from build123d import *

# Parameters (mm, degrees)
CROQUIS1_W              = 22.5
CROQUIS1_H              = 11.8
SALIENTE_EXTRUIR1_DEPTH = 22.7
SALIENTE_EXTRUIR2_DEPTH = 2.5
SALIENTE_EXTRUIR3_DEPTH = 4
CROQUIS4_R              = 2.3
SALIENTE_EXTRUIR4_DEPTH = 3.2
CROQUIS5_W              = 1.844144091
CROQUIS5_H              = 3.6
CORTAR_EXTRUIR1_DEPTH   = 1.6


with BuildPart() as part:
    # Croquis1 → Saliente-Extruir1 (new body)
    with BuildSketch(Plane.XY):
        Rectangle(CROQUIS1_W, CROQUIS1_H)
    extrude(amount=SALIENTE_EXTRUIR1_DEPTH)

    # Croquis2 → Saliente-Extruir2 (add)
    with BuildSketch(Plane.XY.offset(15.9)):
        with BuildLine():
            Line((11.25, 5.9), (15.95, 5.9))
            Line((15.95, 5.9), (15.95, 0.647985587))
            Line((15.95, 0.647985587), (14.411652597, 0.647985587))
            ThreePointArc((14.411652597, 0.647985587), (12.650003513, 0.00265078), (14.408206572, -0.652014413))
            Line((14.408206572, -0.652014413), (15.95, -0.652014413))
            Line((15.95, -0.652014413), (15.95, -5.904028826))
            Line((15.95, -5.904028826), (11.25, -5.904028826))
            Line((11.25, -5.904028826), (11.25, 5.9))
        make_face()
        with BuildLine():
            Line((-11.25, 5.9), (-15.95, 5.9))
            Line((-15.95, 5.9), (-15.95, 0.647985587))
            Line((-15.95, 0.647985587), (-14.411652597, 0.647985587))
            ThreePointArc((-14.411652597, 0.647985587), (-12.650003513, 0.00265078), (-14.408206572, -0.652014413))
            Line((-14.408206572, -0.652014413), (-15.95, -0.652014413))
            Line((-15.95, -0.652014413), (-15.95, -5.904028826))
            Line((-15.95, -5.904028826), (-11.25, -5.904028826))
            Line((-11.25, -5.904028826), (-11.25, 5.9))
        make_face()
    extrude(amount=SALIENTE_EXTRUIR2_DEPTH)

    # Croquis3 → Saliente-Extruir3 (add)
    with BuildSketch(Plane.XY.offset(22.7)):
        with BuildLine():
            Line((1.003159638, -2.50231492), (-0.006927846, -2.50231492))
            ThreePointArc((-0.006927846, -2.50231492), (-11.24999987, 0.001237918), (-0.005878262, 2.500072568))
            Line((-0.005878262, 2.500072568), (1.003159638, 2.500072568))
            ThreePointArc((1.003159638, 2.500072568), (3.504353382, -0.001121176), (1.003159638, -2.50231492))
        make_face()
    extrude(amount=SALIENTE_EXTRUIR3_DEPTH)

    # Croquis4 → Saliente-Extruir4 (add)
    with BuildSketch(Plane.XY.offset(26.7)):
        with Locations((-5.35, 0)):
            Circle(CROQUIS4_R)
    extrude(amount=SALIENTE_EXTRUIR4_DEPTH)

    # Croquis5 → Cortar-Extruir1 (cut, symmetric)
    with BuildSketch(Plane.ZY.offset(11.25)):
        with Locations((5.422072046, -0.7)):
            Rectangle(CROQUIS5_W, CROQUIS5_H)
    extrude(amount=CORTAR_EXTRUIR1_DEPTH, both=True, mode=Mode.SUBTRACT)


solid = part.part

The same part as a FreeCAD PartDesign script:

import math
import FreeCAD as App
import Part
import Sketcher

V = App.Vector
Q = App.Units.Quantity


def add_polygon(sketch, points):
    """Adds a closed chain of lines whose ends are joined by coincident constraints."""
    first, n = sketch.GeometryCount, len(points)
    for a, b in zip(points, points[1:] + points[:1]):
        sketch.addGeometry(Part.LineSegment(App.Vector(*a, 0), App.Vector(*b, 0)), False)
    for i in range(n):
        sketch.addConstraint(Sketcher.Constraint("Coincident", first + i, 2, first + (i + 1) % n, 1))

doc = App.newDocument("Part")
params = doc.addObject("Spreadsheet::Sheet", "Params")
for row, (alias, value) in enumerate([
    ("sketch1_width", "22.5 mm"),
    ("sketch1_height", "11.8 mm"),
    ("pad1_length", "22.7 mm"),
    ("sketch2_radius", "1 mm"),
    ("sketch2_width", "4.7 mm"),
    ("pad2_length", "2.5 mm"),
    ("sketch3_radius", "5.9 mm"),
    ("pad3_length", "4 mm"),
    ("sketch4_diameter", "4.6 mm"),
    ("pad4_length", "3.2 mm"),
    ("sketch5_width", "3.6 mm"),
    ("pocket1_length", "3.2 mm"),
], start=1):
    params.set(f"A{row}", alias)
    params.set(f"B{row}", "=" + value)
    params.setAlias(f"B{row}", alias)

body = doc.addObject("PartDesign::Body", "Body")

# Sketch on XY plane
sketch1 = body.newObject("Sketcher::SketchObject", "Sketch")
sketch1.AttachmentSupport = (doc.getObject("XY_Plane"), [""])
sketch1.MapMode = "FlatFace"
add_polygon(sketch1, [(-11, 6), (-11, -6), (11, -6), (11, 6)])  # lines 0-3
sketch1.addConstraint([
    Sketcher.Constraint("Vertical", 0),
    Sketcher.Constraint("Horizontal", 1),
    Sketcher.Constraint("Vertical", 2),
    Sketcher.Constraint("Horizontal", 3),
    Sketcher.Constraint("Symmetric", 0, 2, 2, 2, -1, 1),
    Sketcher.Constraint("DistanceX", 1, 1, 1, 2, Q("22.5 mm")),
    Sketcher.Constraint("DistanceY", 0, 2, 0, 1, Q("11.8 mm")),
])
sketch1.setExpression("Constraints[9]", "Params.sketch1_width")
sketch1.setExpression("Constraints[10]", "Params.sketch1_height")
pad1 = body.newObject("PartDesign::Pad", "Pad")
pad1.Profile = sketch1
pad1.setExpression("Length", "Params.pad1_length")

# Sketch on XY plane
sketch2 = body.newObject("Sketcher::SketchObject", "Sketch001")
sketch2.AttachmentSupport = (doc.getObject("XY_Plane"), [""])
sketch2.MapMode = "FlatFace"
sketch2.AttachmentOffset = App.Placement(V(0, 0, 15.9), App.Rotation())
sketch2.addGeometry([
    Part.LineSegment(V(15.9, 5.9, 0), V(11.2, 5.9, 0)),  # 0
    Part.LineSegment(V(11.2, 5.9, 0), V(11.2, -5.9, 0)),  # 1
    Part.LineSegment(V(11.2, -5.9, 0), V(15.9, -5.9, 0)),  # 2
    Part.LineSegment(V(15.9, -5.9, 0), V(15.9, -0.7, 0)),  # 3
    Part.LineSegment(V(15.9, -0.7, 0), V(14.4, -0.7, 0)),  # 4
    Part.ArcOfCircle(Part.Circle(V(13.7, 0, 0), V(0, 0, 1), 1), math.radians(40), math.radians(319)),  # 5
    Part.LineSegment(V(14.4, 0.6, 0), V(15.9, 0.6, 0)),  # 6
    Part.LineSegment(V(15.9, 0.6, 0), V(15.9, 5.9, 0)),  # 7
    Part.LineSegment(V(-11.2, 5.9, 0), V(-15.9, 5.9, 0)),  # 8
    Part.LineSegment(V(-15.9, 5.9, 0), V(-15.9, 0.6, 0)),  # 9
    Part.LineSegment(V(-15.9, 0.6, 0), V(-14.4, 0.6, 0)),  # 10
    Part.ArcOfCircle(Part.Circle(V(-13.7, 0, 0), V(0, 0, 1), 1), math.radians(-139), math.radians(140)),  # 11
    Part.LineSegment(V(-14.4, -0.7, 0), V(-15.9, -0.7, 0)),  # 12
    Part.LineSegment(V(-15.9, -0.7, 0), V(-15.9, -5.9, 0)),  # 13
    Part.LineSegment(V(-15.9, -5.9, 0), V(-11.2, -5.9, 0)),  # 14
    Part.LineSegment(V(-11.2, -5.9, 0), V(-11.2, 5.9, 0)),  # 15
], False)
sketch2.addConstraint([
    Sketcher.Constraint("Coincident", 0, 2, 1, 1),
    Sketcher.Constraint("Coincident", 1, 2, 2, 1),
    Sketcher.Constraint("Coincident", 2, 2, 3, 1),
    Sketcher.Constraint("Coincident", 3, 2, 4, 1),
    Sketcher.Constraint("Coincident", 4, 2, 5, 2),
    Sketcher.Constraint("Coincident", 5, 1, 6, 1),
    Sketcher.Constraint("Coincident", 6, 2, 7, 1),
    Sketcher.Constraint("Coincident", 7, 2, 0, 1),
    Sketcher.Constraint("Coincident", 8, 2, 9, 1),
    Sketcher.Constraint("Coincident", 9, 2, 10, 1),
    Sketcher.Constraint("Coincident", 10, 2, 11, 2),
    Sketcher.Constraint("Coincident", 11, 1, 12, 1),
    Sketcher.Constraint("Coincident", 12, 2, 13, 1),
    Sketcher.Constraint("Coincident", 13, 2, 14, 1),
    Sketcher.Constraint("Coincident", 14, 2, 15, 1),
    Sketcher.Constraint("Coincident", 15, 2, 8, 1),
    Sketcher.Constraint("Horizontal", 0),
    Sketcher.Constraint("Vertical", 1),
    Sketcher.Constraint("Horizontal", 2),
    Sketcher.Constraint("Vertical", 3),
    Sketcher.Constraint("Horizontal", 4),
    Sketcher.Constraint("Horizontal", 6),
    Sketcher.Constraint("Vertical", 7),
    Sketcher.Constraint("Horizontal", 8),
    Sketcher.Constraint("Vertical", 9),
    Sketcher.Constraint("Horizontal", 10),
    Sketcher.Constraint("Horizontal", 12),
    Sketcher.Constraint("Vertical", 13),
    Sketcher.Constraint("Horizontal", 14),
    Sketcher.Constraint("Vertical", 15),
    Sketcher.Constraint("Equal", 5, 11),
    Sketcher.Constraint("Symmetric", 5, 3, 11, 3, -1, 1),
    Sketcher.Constraint("Symmetric", 7, 2, 8, 2, -2),
    Sketcher.Constraint("Symmetric", 5, 1, 10, 2, -2),
    Sketcher.Constraint("Symmetric", 3, 2, 12, 2, -2),
    Sketcher.Constraint("Symmetric", 1, 2, 14, 2, -2),
    Sketcher.Constraint("Vertical", 3, 2, 6, 2),
    Sketcher.Constraint("Equal", 3, 7),
    Sketcher.Constraint("Radius", 5, Q("1 mm")),
    Sketcher.Constraint("DistanceX", 0, 2, 0, 1, Q("4.7 mm")),
    Sketcher.Constraint("DistanceY", -1, 1, 0, 2, Q("5.9 mm")),
    Sketcher.Constraint("DistanceX", 11, 3, 5, 3, Q("27.3 mm")),
    Sketcher.Constraint("DistanceX", 0, 2, 5, 3, Q("2.4 mm")),
    Sketcher.Constraint("DistanceY", 4, 2, 5, 1, Q("1.3 mm")),
    Sketcher.Constraint("DistanceY", 1, 2, 1, 1, Q("11.804029 mm")),
])
sketch2.setExpression("Constraints[38]", "Params.sketch2_radius")
sketch2.setExpression("Constraints[39]", "Params.sketch2_width")
pad2 = body.newObject("PartDesign::Pad", "Pad001")
pad2.Profile = sketch2
pad2.setExpression("Length", "Params.pad2_length")

# Sketch on XY plane
sketch3 = body.newObject("Sketcher::SketchObject", "Sketch002")
sketch3.AttachmentSupport = (doc.getObject("XY_Plane"), [""])
sketch3.MapMode = "FlatFace"
sketch3.AttachmentOffset = App.Placement(V(0, 0, 22.7), App.Rotation())
sketch3.addGeometry([
    Part.LineSegment(V(0, -2.5, 0), V(1, -2.5, 0)),
    Part.ArcOfCircle(Part.Circle(V(1, 0, 0), V(0, 0, 1), 2.5), math.radians(-90), math.radians(90)),
    Part.LineSegment(V(1, 2.5, 0), V(0, 2.5, 0)),
    Part.ArcOfCircle(Part.Circle(V(-5.3, 0, 0), V(0, 0, 1), 5.9), math.radians(25), math.radians(335)),
], False)
sketch3.addConstraint([
    Sketcher.Constraint("Tangent", 0, 2, 1, 1),
    Sketcher.Constraint("Tangent", 1, 2, 2, 1),
    Sketcher.Constraint("Coincident", 2, 2, 3, 1),
    Sketcher.Constraint("Coincident", 3, 2, 0, 1),
    Sketcher.Constraint("Horizontal", 0),
    Sketcher.Constraint("Horizontal", 2),
    Sketcher.Constraint("PointOnObject", 3, 3, -1),
    Sketcher.Constraint("Radius", 3, Q("5.9 mm")),
    Sketcher.Constraint("DistanceX", 3, 3, -1, 1, Q("5.35 mm")),
    Sketcher.Constraint("Radius", 1, Q("2.501194 mm")),
    Sketcher.Constraint("DistanceX", 0, 1, 0, 2, Q("1.010087 mm")),
    Sketcher.Constraint("DistanceX", 2, 2, 2, 1, Q("1.009038 mm")),
])
sketch3.setExpression("Constraints[7]", "Params.sketch3_radius")
pad3 = body.newObject("PartDesign::Pad", "Pad002")
pad3.Profile = sketch3
pad3.setExpression("Length", "Params.pad3_length")

# Sketch on XY plane
sketch4 = body.newObject("Sketcher::SketchObject", "Sketch003")
sketch4.AttachmentSupport = (doc.getObject("XY_Plane"), [""])
sketch4.MapMode = "FlatFace"
sketch4.AttachmentOffset = App.Placement(V(0, 0, 26.7), App.Rotation())
sketch4.addGeometry(Part.Circle(V(-5.3, 0, 0), V(0, 0, 1), 2.3), False)
sketch4.addConstraint([
    Sketcher.Constraint("PointOnObject", 0, 3, -1),
    Sketcher.Constraint("Diameter", 0, Q("4.6 mm")),
    Sketcher.Constraint("DistanceX", 0, 3, -1, 1, Q("5.35 mm")),
])
sketch4.setExpression("Constraints[1]", "Params.sketch4_diameter")
pad4 = body.newObject("PartDesign::Pad", "Pad003")
pad4.Profile = sketch4
pad4.setExpression("Length", "Params.pad4_length")

# Sketch on YZ plane
sketch5 = body.newObject("Sketcher::SketchObject", "Sketch004")
sketch5.AttachmentSupport = (doc.getObject("YZ_Plane"), [""])
sketch5.MapMode = "FlatFace"
sketch5.AttachmentOffset = App.Placement(V(0, 0, -11.25), App.Rotation())
add_polygon(sketch5, [(1.1, 4.5), (-2.5, 4.5), (-2.5, 6.3), (1.1, 6.3)])  # lines 0-3
sketch5.addConstraint([
    Sketcher.Constraint("Horizontal", 0),
    Sketcher.Constraint("Vertical", 1),
    Sketcher.Constraint("Horizontal", 2),
    Sketcher.Constraint("Vertical", 3),
    Sketcher.Constraint("DistanceX", 0, 2, 0, 1, Q("3.6 mm")),
    Sketcher.Constraint("DistanceX", 0, 2, -1, 1, Q("2.5 mm")),
    Sketcher.Constraint("DistanceY", -1, 1, 0, 2, Q("4.5 mm")),
    Sketcher.Constraint("DistanceY", 1, 1, 1, 2, Q("1.844144 mm")),
])
sketch5.setExpression("Constraints[8]", "Params.sketch5_width")
pocket1 = body.newObject("PartDesign::Pocket", "Pocket")
pocket1.Profile = sketch5
pocket1.setExpression("Length", "Params.pocket1_length")
pocket1.Midplane = True

doc.recompute()
